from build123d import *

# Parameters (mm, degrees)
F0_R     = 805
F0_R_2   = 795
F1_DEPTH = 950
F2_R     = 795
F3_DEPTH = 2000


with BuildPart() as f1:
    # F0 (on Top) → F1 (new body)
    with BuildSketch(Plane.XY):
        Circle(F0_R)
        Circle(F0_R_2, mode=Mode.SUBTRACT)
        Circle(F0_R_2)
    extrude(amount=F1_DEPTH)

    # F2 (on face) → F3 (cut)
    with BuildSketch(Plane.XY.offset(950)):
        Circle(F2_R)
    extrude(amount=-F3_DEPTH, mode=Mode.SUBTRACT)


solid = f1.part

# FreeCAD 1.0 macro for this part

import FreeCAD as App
import Part
import Sketcher
from FreeCAD import Vector

doc = App.newDocument("Part")
body = doc.addObject("PartDesign::Body", "Body")

sketch1 = body.newObject("Sketcher::SketchObject", "Sketch")
sketch1.AttachmentSupport = (doc.getObject("XY_Plane"), [""])
sketch1.MapMode = "FlatFace"
sketch1.addGeometry(Part.Circle(Vector(0, 0, 0), Vector(0, 0, 1), 805), False)
sketch1.addConstraint([
    Sketcher.Constraint("Coincident", 0, 3, -1, 1),
    Sketcher.Constraint("Diameter", 0, 1610.0),
])
pad1 = body.newObject("PartDesign::Pad", "Pad")
pad1.Profile = sketch1
pad1.Length = 950

sketch2 = body.newObject("Sketcher::SketchObject", "Sketch001")
sketch2.AttachmentSupport = (doc.getObject("XY_Plane"), [""])
sketch2.MapMode = "FlatFace"
sketch2.AttachmentOffset = App.Placement(Vector(0, 0, 950), App.Rotation())
sketch2.addGeometry(Part.Circle(Vector(0, 0, 0), Vector(0, 0, 1), 795), False)
sketch2.addConstraint([
    Sketcher.Constraint("Coincident", 0, 3, -1, 1),
    Sketcher.Constraint("Diameter", 0, 1590.0),
])
pocket1 = body.newObject("PartDesign::Pocket", "Pocket")
pocket1.Profile = sketch2
pocket1.Length = 2000

doc.recompute()
